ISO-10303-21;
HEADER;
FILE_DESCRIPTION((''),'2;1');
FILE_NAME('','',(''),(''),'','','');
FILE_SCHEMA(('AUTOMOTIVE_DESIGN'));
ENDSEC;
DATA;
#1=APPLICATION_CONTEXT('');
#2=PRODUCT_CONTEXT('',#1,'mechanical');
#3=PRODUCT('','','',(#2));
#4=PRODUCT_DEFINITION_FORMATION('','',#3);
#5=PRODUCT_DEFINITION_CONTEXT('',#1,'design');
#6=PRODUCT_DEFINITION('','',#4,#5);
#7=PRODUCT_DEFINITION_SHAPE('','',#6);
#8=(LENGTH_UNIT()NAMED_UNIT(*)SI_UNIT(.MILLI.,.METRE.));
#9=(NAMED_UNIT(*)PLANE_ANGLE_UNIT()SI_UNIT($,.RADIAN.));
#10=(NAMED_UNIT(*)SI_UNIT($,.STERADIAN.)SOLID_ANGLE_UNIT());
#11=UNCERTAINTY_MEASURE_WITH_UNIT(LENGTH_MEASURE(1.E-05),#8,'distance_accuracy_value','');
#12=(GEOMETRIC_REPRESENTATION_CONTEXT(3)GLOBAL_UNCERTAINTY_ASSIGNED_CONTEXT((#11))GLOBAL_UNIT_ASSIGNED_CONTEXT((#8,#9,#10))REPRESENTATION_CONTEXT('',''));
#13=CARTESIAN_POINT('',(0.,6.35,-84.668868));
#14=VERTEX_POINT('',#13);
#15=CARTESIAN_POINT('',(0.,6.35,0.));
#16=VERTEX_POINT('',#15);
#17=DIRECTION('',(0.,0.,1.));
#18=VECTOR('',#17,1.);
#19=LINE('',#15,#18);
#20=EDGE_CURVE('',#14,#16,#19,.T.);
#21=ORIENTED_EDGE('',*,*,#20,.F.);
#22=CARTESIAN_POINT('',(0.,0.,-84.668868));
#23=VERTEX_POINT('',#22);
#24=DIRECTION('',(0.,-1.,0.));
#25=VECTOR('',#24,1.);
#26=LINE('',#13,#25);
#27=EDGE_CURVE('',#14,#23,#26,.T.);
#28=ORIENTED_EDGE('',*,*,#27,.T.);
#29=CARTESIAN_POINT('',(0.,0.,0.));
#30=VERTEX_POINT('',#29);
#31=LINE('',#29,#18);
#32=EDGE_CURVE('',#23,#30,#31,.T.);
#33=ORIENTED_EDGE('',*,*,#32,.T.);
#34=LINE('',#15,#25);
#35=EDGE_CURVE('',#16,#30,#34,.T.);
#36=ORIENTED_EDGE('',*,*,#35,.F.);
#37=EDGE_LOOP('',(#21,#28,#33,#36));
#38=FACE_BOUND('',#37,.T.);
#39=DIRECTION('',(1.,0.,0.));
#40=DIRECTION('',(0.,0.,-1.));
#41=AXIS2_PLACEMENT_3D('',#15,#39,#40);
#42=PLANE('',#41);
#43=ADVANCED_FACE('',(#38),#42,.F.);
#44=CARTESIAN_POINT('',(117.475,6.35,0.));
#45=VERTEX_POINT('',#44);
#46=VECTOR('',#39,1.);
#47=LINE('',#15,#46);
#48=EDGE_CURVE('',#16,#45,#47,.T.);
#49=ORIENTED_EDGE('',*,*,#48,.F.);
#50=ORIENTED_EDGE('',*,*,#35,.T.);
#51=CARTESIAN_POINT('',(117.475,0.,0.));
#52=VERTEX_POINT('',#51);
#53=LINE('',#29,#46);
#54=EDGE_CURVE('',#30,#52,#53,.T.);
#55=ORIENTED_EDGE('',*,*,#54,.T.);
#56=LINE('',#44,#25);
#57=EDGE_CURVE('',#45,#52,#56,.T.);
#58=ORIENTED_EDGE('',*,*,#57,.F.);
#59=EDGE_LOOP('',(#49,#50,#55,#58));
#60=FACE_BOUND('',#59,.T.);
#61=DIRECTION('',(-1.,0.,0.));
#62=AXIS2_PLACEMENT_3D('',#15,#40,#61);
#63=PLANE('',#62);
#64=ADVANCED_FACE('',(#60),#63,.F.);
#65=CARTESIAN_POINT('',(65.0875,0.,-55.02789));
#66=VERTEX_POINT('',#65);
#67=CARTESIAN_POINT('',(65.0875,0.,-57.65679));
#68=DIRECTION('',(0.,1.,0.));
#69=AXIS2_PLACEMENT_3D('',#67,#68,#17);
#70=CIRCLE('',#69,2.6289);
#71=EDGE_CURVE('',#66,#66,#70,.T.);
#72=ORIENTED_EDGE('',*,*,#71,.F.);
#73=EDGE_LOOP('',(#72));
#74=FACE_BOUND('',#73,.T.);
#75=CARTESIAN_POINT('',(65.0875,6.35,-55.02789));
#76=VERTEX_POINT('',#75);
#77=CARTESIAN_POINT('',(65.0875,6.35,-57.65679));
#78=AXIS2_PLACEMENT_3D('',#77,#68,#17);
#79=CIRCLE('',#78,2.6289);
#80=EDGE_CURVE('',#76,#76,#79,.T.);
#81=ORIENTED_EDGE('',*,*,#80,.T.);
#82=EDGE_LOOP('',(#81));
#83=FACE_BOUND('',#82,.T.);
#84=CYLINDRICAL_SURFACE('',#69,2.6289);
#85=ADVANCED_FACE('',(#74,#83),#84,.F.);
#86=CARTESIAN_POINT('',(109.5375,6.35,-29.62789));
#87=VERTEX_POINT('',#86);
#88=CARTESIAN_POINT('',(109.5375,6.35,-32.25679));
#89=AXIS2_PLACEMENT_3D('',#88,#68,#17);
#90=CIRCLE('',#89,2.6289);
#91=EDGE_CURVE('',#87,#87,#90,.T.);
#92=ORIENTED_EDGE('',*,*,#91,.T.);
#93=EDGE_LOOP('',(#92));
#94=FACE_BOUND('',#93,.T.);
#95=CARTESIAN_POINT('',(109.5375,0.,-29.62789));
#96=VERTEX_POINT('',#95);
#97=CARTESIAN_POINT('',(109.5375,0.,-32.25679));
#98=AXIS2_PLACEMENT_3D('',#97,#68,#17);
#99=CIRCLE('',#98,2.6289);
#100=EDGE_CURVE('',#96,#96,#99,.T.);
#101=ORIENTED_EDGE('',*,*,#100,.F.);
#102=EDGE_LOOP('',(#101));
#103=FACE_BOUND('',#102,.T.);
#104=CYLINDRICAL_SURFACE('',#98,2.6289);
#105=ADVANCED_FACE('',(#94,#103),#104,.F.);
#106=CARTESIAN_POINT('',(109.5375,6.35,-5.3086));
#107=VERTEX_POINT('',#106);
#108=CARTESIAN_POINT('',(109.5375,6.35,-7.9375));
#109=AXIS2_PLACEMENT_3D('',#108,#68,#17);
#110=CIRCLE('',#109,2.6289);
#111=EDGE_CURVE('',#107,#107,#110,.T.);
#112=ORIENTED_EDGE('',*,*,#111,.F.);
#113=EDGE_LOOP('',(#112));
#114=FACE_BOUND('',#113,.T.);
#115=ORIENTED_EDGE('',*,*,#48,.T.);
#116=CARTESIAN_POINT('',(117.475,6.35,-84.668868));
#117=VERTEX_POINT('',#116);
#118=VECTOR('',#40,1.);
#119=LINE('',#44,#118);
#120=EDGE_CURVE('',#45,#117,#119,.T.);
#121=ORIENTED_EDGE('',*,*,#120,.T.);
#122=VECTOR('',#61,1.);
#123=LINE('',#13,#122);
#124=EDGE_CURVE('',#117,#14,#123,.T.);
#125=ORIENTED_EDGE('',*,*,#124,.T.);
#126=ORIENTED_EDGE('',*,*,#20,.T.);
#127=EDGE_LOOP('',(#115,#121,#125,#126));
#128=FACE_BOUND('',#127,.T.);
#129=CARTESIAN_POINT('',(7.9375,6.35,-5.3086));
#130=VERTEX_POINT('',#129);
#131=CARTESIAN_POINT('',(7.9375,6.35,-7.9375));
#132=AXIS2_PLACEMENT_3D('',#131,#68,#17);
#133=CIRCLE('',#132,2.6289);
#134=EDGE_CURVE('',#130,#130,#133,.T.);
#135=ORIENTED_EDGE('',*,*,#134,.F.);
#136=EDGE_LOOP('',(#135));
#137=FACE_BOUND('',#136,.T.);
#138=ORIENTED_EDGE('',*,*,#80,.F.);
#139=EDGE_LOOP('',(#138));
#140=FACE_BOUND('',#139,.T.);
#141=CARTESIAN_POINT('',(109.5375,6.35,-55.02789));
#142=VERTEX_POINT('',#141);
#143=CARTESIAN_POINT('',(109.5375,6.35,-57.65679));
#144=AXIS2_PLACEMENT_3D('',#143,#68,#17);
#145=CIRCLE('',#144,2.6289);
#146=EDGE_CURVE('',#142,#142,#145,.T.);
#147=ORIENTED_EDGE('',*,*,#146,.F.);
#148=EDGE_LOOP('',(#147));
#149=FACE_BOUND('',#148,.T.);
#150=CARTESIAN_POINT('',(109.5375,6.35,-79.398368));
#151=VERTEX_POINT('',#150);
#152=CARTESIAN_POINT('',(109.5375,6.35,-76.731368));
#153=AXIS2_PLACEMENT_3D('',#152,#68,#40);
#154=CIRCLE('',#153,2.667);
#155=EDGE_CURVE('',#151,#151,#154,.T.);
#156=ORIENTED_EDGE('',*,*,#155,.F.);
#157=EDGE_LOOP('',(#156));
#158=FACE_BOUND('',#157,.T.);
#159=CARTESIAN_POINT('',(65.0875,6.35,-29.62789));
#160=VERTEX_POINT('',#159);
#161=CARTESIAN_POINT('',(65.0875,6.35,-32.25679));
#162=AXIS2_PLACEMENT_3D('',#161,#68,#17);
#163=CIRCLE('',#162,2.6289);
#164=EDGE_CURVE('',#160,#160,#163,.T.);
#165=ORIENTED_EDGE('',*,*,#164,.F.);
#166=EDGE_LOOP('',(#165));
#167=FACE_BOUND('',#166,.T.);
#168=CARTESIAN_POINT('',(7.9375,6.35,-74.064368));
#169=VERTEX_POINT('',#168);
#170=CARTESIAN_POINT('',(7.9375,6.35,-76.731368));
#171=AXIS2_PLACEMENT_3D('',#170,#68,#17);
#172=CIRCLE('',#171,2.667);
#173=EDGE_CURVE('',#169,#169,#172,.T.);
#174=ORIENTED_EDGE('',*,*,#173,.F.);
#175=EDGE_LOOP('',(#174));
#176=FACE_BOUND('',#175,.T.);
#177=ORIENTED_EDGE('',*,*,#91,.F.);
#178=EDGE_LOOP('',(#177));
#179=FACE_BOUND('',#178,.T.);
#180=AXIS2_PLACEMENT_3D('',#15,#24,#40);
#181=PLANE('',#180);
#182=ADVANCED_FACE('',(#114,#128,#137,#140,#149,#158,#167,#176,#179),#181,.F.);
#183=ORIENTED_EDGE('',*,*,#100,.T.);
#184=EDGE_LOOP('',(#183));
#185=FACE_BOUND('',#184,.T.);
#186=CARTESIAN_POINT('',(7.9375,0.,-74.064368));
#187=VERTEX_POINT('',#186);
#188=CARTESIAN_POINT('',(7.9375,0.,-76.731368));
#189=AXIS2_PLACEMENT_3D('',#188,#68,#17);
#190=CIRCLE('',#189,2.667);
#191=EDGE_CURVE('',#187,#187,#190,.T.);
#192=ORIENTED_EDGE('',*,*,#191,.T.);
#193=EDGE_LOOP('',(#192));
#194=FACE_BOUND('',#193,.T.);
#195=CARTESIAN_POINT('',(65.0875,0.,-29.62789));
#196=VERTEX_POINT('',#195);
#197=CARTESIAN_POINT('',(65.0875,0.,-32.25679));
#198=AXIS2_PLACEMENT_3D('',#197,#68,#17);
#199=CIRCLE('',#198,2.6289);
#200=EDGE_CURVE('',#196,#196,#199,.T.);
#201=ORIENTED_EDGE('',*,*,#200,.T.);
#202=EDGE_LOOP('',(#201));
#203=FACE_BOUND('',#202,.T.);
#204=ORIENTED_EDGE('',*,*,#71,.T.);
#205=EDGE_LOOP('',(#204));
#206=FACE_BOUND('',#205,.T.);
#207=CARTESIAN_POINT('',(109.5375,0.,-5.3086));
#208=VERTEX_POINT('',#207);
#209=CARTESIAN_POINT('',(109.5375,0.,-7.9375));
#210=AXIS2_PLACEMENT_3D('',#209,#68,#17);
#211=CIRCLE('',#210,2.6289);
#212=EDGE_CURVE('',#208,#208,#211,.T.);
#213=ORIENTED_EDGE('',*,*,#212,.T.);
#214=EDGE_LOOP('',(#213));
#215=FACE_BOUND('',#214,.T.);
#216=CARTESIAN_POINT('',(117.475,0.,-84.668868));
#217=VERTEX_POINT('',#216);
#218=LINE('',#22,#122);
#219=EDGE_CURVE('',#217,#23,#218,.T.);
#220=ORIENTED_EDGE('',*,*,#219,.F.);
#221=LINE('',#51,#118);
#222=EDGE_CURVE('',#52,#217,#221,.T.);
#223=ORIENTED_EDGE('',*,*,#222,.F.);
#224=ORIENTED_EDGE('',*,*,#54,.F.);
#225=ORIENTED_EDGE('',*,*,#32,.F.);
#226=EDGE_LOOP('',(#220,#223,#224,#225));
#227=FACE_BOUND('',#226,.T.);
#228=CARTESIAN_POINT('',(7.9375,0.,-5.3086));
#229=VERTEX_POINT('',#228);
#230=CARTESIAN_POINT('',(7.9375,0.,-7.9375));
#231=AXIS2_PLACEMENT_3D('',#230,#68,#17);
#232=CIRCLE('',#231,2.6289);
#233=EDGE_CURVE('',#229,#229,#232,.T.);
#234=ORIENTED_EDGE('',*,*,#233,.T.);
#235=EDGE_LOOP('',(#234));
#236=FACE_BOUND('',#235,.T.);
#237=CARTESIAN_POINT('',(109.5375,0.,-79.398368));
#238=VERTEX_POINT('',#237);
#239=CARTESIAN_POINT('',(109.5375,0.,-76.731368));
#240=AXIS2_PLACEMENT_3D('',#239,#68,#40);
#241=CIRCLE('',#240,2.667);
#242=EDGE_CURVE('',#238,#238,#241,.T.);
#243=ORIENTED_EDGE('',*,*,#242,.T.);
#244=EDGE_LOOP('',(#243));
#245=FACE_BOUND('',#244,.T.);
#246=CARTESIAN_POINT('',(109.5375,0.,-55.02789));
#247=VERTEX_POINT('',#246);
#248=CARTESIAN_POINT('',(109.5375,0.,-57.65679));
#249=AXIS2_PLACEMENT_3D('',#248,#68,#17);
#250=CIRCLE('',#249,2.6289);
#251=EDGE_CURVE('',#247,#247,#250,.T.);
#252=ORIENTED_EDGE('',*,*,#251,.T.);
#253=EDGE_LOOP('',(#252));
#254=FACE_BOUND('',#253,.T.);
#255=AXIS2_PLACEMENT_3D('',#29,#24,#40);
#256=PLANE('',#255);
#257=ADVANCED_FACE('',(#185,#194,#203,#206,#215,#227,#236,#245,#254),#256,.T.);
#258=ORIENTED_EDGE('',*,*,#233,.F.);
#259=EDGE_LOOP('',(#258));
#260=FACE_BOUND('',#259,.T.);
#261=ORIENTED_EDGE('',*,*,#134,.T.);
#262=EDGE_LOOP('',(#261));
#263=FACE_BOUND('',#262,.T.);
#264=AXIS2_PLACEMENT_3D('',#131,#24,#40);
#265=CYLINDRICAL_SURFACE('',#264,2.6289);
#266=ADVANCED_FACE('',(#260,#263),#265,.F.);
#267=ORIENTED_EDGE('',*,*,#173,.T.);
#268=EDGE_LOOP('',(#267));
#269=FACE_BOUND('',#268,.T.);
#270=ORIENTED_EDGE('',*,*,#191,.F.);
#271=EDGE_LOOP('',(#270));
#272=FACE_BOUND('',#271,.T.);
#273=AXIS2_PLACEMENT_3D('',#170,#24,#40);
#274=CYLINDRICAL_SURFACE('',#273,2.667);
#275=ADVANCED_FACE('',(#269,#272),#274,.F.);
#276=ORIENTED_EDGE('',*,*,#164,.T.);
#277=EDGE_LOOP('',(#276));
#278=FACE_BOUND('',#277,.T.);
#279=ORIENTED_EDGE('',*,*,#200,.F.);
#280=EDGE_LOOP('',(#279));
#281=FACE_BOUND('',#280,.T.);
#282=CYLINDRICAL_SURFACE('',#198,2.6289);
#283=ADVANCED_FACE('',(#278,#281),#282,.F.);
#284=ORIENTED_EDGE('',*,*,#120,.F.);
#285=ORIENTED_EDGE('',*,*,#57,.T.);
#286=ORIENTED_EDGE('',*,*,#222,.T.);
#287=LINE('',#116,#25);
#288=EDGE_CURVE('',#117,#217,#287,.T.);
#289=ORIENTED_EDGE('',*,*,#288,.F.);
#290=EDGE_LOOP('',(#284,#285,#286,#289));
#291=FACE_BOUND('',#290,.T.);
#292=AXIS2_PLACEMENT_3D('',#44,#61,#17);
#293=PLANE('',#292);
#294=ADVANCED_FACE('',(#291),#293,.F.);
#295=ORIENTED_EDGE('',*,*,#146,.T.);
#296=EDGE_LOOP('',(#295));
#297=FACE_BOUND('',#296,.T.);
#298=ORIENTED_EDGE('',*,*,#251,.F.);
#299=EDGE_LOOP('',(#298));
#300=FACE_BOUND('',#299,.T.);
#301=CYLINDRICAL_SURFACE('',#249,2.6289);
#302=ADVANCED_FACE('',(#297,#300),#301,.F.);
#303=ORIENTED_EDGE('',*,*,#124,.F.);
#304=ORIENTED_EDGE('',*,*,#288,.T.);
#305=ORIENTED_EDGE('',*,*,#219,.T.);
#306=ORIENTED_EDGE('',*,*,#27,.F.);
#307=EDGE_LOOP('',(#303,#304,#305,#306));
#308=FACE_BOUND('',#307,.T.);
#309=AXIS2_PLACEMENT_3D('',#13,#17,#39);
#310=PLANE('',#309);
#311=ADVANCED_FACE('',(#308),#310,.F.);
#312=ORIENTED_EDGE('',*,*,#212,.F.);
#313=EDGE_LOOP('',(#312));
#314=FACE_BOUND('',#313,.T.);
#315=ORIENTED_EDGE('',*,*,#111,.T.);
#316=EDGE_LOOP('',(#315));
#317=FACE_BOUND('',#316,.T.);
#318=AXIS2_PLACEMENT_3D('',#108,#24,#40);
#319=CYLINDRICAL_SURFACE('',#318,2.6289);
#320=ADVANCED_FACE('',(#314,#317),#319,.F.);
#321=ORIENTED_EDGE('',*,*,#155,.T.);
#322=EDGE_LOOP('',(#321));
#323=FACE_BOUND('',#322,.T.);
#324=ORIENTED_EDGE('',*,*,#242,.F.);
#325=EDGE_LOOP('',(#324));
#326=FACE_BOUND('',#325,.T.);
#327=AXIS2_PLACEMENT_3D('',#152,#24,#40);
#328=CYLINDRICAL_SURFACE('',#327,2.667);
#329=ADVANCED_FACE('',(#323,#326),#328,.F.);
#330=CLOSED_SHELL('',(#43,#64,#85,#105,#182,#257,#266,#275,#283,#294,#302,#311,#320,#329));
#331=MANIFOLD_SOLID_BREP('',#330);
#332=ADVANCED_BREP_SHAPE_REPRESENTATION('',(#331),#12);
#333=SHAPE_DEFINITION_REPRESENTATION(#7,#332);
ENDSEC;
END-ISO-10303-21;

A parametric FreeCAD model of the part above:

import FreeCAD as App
import Part
import Sketcher

V = App.Vector
Q = App.Units.Quantity


def add_polygon(sketch, points):
    """Adds a closed chain of lines whose ends are joined by coincident constraints."""
    first, n = sketch.GeometryCount, len(points)
    for a, b in zip(points, points[1:] + points[:1]):
        sketch.addGeometry(Part.LineSegment(App.Vector(*a, 0), App.Vector(*b, 0)), False)
    for i in range(n):
        sketch.addConstraint(Sketcher.Constraint("Coincident", first + i, 2, first + (i + 1) % n, 1))

doc = App.newDocument("Part")
body = doc.addObject("PartDesign::Body", "Body")

# Sketch on XZ plane
sketch1 = doc.addObject("Sketcher::SketchObject", "Sketch")
body.addObject(sketch1)
sketch1.AttachmentSupport = (doc.XZ_Plane, [""])
sketch1.MapMode = "FlatFace"
add_polygon(sketch1, [(0, -84.7), (0, 0), (117.5, 0), (117.5, -84.7)])  # lines 0-3
sketch1.addGeometry(Part.Circle(V(7.9, -7.9, 0), V(0, 0, 1), 2.6), False)  # 4
sketch1.addGeometry(Part.Circle(V(109.5, -7.9, 0), V(0, 0, 1), 2.6), False)  # 5
sketch1.addGeometry(Part.Circle(V(7.9, -76.7, 0), V(0, 0, 1), 2.7), False)  # 6
sketch1.addGeometry(Part.Circle(V(109.5, -76.7, 0), V(0, 0, 1), 2.7), False)  # 7
sketch1.addConstraint([
    Sketcher.Constraint("Vertical", 0),
    Sketcher.Constraint("Horizontal", 1),
    Sketcher.Constraint("Vertical", 2),
    Sketcher.Constraint("Horizontal", 3),
    Sketcher.Constraint("Coincident", 0, 2, -1, 1),
    Sketcher.Constraint("Equal", 4, 5),
    Sketcher.Constraint("Equal", 6, 7),
    Sketcher.Constraint("Horizontal", 4, 3, 5, 3),
    Sketcher.Constraint("Horizontal", 6, 3, 7, 3),
    Sketcher.Constraint("Vertical", 4, 3, 6, 3),
    Sketcher.Constraint("Vertical", 5, 3, 7, 3),
    Sketcher.Constraint("Diameter", 6, Q("0.21 in")),
    Sketcher.Constraint("Diameter", 4, Q("0.207 in")),
    Sketcher.Constraint("DistanceX", 4, 3, 5, 3, Q("4 in")),
    Sketcher.Constraint("DistanceX", 1, 1, 1, 2, Q("4.625 in")),
    Sketcher.Constraint("DistanceX", -1, 1, 4, 3, Q("0.3125 in")),
    Sketcher.Constraint("DistanceY", 4, 3, -1, 1, Q("0.3125 in")),
    Sketcher.Constraint("DistanceY", 2, 2, 7, 3, Q("0.3125 in")),
    Sketcher.Constraint("DistanceY", 0, 1, 0, 2, 84.668868),
])
pad1 = doc.addObject("PartDesign::Pad", "Pad")
body.addObject(pad1)
pad1.Profile = sketch1
pad1.Length = Q("0.25 in")
pad1.Reversed = True

# Sketch on XZ plane
sketch2 = doc.addObject("Sketcher::SketchObject", "Sketch001")
body.addObject(sketch2)
sketch2.AttachmentSupport = (doc.XZ_Plane, [""])
sketch2.MapMode = "FlatFace"
sketch2.AttachmentOffset = App.Placement(V(0, 0, -0.25 * 25.4), App.Rotation())
sketch2.addGeometry([
    Part.Circle(V(109.5, -32.3, 0), V(0, 0, 1), 2.6),
    Part.Circle(V(109.5, -57.7, 0), V(0, 0, 1), 2.6),
    Part.Circle(V(65.1, -57.7, 0), V(0, 0, 1), 2.6),
    Part.Circle(V(65.1, -32.3, 0), V(0, 0, 1), 2.6),
], False)
sketch2.addConstraint([
    Sketcher.Constraint("Equal", 0, 1),
    Sketcher.Constraint("Equal", 1, 2),
    Sketcher.Constraint("Equal", 2, 3),
    Sketcher.Constraint("Horizontal", 1, 3, 2, 3),
    Sketcher.Constraint("Horizontal", 0, 3, 3, 3),
    Sketcher.Constraint("Vertical", 0, 3, 1, 3),
    Sketcher.Constraint("Vertical", 2, 3, 3, 3),
    Sketcher.Constraint("Diameter", 0, Q("0.207 in")),
    Sketcher.Constraint("DistanceY", 1, 3, 0, 3, Q("1 in")),
    Sketcher.Constraint("DistanceX", 2, 3, 1, 3, Q("1.75 in")),
    Sketcher.Constraint("DistanceX", -1, 1, 0, 3, Q("4.3125 in")),
    Sketcher.Constraint("DistanceY", 0, 3, -1, 1, 32.25679),
])
pocket1 = doc.addObject("PartDesign::Pocket", "Pocket")
body.addObject(pocket1)
pocket1.Profile = sketch2
pocket1.Type = "ThroughAll"
pocket1.Reversed = True

doc.recompute()
